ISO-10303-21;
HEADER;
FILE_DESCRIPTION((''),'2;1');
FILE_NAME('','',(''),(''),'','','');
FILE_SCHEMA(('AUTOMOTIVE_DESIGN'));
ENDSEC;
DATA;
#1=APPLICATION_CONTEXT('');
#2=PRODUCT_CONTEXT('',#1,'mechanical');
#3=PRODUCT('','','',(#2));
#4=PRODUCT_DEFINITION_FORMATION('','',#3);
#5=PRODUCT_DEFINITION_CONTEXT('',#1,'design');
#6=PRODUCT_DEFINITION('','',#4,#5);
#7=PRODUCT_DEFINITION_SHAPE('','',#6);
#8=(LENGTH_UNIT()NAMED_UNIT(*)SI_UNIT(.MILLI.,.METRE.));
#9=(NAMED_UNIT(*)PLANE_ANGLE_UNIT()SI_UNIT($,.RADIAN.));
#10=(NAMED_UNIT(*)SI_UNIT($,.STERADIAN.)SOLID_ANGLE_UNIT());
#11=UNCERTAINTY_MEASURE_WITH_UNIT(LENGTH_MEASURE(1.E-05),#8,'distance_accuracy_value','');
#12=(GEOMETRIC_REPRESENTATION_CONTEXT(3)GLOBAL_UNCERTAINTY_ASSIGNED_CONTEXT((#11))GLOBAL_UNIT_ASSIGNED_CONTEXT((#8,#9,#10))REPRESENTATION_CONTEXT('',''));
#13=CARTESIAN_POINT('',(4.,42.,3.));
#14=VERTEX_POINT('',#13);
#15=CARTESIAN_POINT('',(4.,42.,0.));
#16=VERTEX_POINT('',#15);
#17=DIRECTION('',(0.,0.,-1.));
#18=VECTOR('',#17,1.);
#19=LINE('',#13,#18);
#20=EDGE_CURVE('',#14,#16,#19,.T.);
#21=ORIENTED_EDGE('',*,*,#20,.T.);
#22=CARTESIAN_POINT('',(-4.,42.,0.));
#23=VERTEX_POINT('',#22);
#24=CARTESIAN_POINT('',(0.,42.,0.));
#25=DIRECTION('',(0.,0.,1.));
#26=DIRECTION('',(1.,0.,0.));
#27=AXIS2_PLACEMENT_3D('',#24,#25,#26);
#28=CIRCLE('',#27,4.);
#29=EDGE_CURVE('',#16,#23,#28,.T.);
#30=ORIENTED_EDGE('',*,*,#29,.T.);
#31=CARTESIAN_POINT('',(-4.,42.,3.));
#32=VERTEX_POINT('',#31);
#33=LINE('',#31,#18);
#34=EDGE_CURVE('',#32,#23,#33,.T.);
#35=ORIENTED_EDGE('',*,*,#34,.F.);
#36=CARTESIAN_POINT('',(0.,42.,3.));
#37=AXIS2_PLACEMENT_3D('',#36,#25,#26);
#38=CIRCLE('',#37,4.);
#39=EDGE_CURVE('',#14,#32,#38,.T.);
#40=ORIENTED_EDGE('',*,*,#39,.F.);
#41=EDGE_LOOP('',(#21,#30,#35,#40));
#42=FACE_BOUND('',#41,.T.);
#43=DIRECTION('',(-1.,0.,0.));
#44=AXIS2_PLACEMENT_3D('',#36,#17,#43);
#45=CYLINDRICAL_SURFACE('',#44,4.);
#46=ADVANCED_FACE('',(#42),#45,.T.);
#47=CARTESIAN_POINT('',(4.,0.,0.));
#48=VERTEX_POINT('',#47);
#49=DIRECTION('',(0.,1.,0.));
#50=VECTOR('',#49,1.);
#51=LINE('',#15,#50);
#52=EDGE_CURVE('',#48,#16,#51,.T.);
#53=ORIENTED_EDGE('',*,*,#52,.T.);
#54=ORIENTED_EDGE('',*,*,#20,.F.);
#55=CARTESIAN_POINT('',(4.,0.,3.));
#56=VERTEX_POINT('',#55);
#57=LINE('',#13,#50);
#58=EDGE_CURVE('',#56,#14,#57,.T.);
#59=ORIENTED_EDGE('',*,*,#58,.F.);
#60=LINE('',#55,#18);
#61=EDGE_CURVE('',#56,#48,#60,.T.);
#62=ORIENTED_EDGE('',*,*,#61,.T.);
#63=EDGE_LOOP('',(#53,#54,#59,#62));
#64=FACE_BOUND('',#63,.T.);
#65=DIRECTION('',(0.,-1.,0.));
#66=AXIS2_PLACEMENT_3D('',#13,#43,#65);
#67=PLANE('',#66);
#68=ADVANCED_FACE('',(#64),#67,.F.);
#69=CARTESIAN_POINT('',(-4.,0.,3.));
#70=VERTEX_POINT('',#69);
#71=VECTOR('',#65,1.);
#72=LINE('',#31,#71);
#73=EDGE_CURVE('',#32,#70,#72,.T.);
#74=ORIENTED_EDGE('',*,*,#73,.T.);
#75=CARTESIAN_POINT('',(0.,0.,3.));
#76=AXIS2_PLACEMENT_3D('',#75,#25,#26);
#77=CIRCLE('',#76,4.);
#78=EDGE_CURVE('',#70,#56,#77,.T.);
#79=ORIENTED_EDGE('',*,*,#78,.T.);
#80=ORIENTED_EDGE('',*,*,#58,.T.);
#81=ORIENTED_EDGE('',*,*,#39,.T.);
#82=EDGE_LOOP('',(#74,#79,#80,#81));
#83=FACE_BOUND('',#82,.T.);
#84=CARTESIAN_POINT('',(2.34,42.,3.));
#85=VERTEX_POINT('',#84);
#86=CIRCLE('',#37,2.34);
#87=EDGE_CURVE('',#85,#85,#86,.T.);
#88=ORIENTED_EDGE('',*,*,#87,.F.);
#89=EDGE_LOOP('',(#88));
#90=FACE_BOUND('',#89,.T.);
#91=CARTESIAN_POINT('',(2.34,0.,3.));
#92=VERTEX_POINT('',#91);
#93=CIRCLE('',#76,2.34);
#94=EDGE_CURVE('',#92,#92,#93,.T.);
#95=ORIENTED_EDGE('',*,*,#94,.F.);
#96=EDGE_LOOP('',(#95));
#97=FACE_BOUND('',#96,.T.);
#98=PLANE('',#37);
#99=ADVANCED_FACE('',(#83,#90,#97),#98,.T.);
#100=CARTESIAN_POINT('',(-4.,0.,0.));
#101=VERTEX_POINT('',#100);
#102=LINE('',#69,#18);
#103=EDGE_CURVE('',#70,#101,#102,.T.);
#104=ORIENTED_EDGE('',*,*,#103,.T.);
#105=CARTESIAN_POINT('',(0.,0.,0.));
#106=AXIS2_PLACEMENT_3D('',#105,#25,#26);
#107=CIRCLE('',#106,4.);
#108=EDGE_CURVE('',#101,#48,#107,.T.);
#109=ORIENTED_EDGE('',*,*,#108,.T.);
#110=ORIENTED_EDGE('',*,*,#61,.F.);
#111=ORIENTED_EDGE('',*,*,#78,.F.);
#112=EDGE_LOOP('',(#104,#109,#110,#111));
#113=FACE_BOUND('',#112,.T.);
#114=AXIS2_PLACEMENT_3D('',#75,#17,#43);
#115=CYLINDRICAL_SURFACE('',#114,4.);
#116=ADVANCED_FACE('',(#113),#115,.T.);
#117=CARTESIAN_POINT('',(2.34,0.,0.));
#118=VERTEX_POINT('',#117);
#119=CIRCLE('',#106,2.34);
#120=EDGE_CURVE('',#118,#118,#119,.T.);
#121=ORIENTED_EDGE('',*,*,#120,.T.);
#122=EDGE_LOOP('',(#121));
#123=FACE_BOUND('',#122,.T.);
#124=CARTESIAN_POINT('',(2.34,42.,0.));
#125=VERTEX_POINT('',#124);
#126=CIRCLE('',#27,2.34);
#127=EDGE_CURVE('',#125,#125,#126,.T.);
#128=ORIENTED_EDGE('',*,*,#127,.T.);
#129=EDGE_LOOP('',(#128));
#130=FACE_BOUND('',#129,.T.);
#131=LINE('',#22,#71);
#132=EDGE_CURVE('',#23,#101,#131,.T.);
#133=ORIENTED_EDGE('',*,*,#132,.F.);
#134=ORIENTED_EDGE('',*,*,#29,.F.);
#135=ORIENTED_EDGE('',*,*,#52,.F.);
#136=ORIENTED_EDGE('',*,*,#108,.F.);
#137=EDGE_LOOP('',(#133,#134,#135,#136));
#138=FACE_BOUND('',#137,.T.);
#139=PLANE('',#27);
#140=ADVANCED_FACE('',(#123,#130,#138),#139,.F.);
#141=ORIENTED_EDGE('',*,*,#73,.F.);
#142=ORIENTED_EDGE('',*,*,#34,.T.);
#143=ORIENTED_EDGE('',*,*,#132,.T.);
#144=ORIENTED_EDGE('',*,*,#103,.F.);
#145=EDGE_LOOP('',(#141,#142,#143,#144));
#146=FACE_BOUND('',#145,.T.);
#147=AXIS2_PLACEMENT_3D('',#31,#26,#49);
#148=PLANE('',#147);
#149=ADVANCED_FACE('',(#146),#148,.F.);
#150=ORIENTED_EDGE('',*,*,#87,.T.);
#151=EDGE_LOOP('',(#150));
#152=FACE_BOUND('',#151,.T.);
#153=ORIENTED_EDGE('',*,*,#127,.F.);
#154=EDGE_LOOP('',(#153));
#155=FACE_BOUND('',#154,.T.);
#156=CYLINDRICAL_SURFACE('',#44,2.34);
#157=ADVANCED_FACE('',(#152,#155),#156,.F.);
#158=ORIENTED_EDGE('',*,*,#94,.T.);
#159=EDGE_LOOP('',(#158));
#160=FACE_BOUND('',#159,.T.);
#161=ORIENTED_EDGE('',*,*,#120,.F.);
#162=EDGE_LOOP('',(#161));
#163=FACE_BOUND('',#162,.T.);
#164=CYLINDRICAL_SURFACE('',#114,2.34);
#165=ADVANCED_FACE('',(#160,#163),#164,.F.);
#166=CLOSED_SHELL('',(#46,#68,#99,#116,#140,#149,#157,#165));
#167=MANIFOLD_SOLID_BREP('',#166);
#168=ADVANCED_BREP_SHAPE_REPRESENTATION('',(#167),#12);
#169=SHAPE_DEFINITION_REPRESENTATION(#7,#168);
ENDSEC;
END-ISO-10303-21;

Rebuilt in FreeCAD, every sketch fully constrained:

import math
import FreeCAD as App
import Part
import Sketcher
from FreeCAD import Vector
Q = App.Units.Quantity

doc = App.newDocument("Part")
body = doc.addObject("PartDesign::Body", "Body")

# Sketch on XY plane
sketch1 = body.newObject("Sketcher::SketchObject", "Sketch")
sketch1.AttachmentSupport = (doc.getObject("XY_Plane"), [""])
sketch1.MapMode = "FlatFace"
sketch1.addGeometry([
    Part.LineSegment(Vector(-4, 42, 0), Vector(-4, 0, 0)),  # 0
    Part.ArcOfCircle(Part.Circle(Vector(0, 0, 0), Vector(0, 0, 1), 4), math.radians(180), math.radians(360)),  # 1
    Part.LineSegment(Vector(4, 0, 0), Vector(4, 42, 0)),  # 2
    Part.ArcOfCircle(Part.Circle(Vector(0, 42, 0), Vector(0, 0, 1), 4), math.radians(0), math.radians(180)),  # 3
    Part.Circle(Vector(0, 0, 0), Vector(0, 0, 1), 2.34),  # 4
    Part.Circle(Vector(0, 42, 0), Vector(0, 0, 1), 2.34),  # 5
], False)
sketch1.addConstraint([
    Sketcher.Constraint("Tangent", 0, 2, 1, 1),
    Sketcher.Constraint("Tangent", 1, 2, 2, 1),
    Sketcher.Constraint("Tangent", 2, 2, 3, 1),
    Sketcher.Constraint("Tangent", 3, 2, 0, 1),
    Sketcher.Constraint("Vertical", 0),
    Sketcher.Constraint("Vertical", 2),
    Sketcher.Constraint("Coincident", 1, 3, -1, 1),
    Sketcher.Constraint("Coincident", 4, 3, -1, 1),
    Sketcher.Constraint("Coincident", 5, 3, 3, 3),
    Sketcher.Constraint("Equal", 4, 5),
    Sketcher.Constraint("Radius", 1, Q("4 mm")),
    Sketcher.Constraint("Diameter", 4, Q("4.68 mm")),
    Sketcher.Constraint("DistanceY", 0, 2, 0, 1, Q("42 mm")),
])
pad1 = body.newObject("PartDesign::Pad", "Pad")
pad1.Profile = sketch1
pad1.Length = 3

doc.recompute()
